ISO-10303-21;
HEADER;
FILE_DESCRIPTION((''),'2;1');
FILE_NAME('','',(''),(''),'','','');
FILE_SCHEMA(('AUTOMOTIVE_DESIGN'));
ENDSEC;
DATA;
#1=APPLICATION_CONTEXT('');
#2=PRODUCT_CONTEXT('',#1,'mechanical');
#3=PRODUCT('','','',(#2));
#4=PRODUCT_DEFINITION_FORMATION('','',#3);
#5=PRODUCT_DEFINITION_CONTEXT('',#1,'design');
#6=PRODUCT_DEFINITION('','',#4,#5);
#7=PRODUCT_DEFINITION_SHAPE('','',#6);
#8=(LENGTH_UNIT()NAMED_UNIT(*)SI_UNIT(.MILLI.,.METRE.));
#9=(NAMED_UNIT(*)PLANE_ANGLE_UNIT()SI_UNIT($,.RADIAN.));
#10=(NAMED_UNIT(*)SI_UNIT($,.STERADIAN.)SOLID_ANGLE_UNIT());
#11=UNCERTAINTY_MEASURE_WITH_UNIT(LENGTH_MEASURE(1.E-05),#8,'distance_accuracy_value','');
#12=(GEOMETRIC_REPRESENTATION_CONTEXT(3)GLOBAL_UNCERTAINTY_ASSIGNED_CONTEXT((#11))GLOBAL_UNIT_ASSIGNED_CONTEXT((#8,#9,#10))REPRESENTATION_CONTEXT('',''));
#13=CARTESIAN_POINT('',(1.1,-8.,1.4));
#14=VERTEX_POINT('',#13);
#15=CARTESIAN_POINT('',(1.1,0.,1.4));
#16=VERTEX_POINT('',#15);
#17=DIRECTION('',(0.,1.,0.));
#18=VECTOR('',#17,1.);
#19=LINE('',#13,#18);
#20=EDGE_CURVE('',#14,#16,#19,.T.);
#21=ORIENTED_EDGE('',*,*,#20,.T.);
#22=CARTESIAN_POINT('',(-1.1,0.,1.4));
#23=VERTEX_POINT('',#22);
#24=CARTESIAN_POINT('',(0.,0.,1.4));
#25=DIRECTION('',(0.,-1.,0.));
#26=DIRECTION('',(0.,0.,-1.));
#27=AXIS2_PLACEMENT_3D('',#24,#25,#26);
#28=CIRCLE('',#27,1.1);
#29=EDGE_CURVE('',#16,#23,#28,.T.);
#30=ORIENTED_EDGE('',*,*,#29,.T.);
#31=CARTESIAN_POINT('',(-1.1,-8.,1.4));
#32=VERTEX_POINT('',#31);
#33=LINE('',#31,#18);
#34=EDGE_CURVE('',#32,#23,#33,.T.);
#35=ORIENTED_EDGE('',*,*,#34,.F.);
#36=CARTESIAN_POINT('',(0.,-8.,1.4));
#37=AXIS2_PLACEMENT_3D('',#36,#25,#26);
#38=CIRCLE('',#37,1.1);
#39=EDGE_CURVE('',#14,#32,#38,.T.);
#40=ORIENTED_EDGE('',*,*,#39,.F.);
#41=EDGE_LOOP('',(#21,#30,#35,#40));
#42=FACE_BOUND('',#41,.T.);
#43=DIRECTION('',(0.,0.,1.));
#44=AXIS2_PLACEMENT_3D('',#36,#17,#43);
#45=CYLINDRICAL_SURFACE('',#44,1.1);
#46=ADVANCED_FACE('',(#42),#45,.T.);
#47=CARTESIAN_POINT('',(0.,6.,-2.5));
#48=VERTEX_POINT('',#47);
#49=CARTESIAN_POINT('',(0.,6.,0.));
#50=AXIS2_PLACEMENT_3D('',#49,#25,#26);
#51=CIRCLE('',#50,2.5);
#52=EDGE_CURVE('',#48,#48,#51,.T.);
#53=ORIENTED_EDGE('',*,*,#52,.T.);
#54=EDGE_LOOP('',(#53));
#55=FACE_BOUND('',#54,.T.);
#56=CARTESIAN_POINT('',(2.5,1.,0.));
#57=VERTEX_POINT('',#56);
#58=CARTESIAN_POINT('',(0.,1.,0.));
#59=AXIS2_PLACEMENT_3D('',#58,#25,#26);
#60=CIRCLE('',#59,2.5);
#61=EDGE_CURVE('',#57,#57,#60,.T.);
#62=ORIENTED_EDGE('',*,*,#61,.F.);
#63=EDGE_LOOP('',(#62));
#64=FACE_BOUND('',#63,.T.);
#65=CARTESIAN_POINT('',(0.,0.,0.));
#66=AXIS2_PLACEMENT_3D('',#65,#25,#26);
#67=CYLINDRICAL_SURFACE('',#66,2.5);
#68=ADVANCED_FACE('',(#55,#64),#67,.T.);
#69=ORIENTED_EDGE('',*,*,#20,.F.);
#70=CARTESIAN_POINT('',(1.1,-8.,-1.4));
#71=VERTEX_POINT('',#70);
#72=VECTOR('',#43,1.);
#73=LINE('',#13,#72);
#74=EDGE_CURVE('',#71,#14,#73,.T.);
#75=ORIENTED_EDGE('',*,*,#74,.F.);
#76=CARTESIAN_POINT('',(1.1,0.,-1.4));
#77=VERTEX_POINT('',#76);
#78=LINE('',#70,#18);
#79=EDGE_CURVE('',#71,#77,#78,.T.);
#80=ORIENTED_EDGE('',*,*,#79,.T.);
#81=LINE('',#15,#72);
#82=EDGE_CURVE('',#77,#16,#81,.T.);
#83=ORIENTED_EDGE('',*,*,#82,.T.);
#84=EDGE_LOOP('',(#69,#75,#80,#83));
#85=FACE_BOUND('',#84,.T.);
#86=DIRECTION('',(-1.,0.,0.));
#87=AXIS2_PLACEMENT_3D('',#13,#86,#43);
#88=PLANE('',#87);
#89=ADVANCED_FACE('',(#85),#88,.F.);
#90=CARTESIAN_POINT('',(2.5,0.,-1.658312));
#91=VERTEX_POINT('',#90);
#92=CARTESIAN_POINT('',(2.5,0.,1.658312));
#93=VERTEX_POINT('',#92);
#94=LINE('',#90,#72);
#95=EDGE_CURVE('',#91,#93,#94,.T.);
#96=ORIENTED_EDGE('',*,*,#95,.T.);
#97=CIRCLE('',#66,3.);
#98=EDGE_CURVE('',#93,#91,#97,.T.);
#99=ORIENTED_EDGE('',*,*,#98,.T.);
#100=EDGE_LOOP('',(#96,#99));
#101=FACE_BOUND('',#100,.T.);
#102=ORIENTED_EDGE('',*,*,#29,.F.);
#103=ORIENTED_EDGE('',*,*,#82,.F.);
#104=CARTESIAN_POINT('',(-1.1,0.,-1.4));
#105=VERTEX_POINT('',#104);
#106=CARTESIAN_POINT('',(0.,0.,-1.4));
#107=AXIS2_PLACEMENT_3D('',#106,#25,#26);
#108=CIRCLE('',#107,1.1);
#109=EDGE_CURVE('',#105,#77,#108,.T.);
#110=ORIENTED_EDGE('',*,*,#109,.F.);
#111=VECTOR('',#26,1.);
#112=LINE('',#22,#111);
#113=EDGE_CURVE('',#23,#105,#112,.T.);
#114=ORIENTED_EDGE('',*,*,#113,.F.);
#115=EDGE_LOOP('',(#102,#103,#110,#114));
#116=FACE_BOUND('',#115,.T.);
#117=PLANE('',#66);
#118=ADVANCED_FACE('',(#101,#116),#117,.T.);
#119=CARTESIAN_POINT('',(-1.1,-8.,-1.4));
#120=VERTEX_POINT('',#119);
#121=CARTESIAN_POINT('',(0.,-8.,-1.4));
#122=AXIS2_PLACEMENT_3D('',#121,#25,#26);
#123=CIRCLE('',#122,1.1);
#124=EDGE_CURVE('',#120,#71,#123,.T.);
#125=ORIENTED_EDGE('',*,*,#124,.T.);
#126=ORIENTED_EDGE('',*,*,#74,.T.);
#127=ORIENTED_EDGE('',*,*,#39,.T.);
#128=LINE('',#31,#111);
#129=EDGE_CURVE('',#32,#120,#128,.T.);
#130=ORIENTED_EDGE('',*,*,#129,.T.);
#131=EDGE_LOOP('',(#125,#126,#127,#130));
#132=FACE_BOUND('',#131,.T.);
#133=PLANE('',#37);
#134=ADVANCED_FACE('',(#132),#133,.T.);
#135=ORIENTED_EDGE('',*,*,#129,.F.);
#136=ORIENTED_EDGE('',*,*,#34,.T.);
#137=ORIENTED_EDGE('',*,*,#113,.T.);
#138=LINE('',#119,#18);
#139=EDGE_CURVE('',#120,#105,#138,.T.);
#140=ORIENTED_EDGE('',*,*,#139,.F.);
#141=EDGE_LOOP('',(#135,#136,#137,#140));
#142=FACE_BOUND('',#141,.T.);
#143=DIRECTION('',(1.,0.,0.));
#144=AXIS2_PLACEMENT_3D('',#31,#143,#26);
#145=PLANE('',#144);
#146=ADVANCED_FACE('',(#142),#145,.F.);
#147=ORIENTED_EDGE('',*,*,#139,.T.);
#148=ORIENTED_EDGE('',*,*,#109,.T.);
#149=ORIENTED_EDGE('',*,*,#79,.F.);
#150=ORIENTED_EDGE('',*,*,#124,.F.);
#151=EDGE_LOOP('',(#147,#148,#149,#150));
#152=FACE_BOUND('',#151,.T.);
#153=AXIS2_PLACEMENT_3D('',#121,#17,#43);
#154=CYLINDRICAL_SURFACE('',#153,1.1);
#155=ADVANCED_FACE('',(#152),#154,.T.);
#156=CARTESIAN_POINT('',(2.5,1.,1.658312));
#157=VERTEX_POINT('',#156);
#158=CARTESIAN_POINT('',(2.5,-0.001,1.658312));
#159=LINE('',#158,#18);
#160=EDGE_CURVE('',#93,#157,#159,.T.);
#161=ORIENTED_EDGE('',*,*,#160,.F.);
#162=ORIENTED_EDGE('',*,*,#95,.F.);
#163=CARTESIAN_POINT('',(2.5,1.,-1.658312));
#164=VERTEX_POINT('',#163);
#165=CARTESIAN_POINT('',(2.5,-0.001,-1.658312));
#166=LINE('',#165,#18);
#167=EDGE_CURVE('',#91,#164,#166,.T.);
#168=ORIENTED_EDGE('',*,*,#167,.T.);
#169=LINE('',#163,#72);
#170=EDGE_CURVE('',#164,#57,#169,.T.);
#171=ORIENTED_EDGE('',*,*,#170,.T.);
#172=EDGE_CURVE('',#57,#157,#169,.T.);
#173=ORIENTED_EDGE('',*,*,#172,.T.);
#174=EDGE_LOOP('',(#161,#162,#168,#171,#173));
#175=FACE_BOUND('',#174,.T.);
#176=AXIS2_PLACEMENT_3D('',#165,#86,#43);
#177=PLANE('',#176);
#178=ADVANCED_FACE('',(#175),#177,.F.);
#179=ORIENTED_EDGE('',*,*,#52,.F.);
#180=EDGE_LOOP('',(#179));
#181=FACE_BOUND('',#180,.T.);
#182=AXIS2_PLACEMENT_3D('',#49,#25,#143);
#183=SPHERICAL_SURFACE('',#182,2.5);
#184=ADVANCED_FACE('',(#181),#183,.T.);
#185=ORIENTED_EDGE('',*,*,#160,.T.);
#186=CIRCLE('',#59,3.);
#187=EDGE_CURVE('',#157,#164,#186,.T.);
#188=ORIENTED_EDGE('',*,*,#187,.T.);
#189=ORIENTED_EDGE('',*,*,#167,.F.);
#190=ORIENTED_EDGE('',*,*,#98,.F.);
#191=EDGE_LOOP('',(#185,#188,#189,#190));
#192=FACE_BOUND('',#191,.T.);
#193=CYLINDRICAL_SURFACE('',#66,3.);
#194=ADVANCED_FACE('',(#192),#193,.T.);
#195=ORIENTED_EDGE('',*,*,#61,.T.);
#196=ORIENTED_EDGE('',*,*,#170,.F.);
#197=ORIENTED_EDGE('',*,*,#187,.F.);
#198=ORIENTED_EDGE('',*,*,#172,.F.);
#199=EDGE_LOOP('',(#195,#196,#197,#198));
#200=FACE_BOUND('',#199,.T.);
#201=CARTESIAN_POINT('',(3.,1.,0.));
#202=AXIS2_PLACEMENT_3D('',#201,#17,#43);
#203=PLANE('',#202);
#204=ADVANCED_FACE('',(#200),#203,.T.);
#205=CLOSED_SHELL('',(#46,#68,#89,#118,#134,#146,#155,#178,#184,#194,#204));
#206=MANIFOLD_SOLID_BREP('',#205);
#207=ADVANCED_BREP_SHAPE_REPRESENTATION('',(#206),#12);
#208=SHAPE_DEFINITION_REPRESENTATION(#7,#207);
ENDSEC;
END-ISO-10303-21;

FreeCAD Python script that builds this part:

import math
import FreeCAD as App
import Part
import Sketcher
from FreeCAD import Vector
Q = App.Units.Quantity

doc = App.newDocument("Part")
body = doc.addObject("PartDesign::Body", "Body")

sketch1 = body.newObject("Sketcher::SketchObject", "Sketch")
sketch1.AttachmentSupport = (doc.getObject("XY_Plane"), [""])
sketch1.MapMode = "FlatFace"
sketch1.addGeometry([
    Part.LineSegment(Vector(0, 8.5, 0), Vector(0, 0, 0)),
    Part.LineSegment(Vector(0, 0, 0), Vector(3, 0, 0)),
    Part.LineSegment(Vector(3, 0, 0), Vector(3, 1, 0)),
    Part.LineSegment(Vector(3, 1, 0), Vector(2.5, 1, 0)),
    Part.LineSegment(Vector(2.5, 1, 0), Vector(2.5, 6, 0)),
    Part.ArcOfCircle(Part.Circle(Vector(0, 6, 0), Vector(0, 0, 1), 2.5), math.radians(0), math.radians(90)),
], False)
sketch1.addConstraint([
    Sketcher.Constraint("Coincident", 0, 2, 1, 1),
    Sketcher.Constraint("Coincident", 1, 2, 2, 1),
    Sketcher.Constraint("Coincident", 2, 2, 3, 1),
    Sketcher.Constraint("Coincident", 3, 2, 4, 1),
    Sketcher.Constraint("Tangent", 4, 2, 5, 1),
    Sketcher.Constraint("Coincident", 5, 2, 0, 1),
    Sketcher.Constraint("Vertical", 0),
    Sketcher.Constraint("Horizontal", 1),
    Sketcher.Constraint("Vertical", 2),
    Sketcher.Constraint("Horizontal", 3),
    Sketcher.Constraint("Vertical", 4),
    Sketcher.Constraint("Coincident", 0, 2, -1, 1),
    Sketcher.Constraint("PointOnObject", 5, 3, -2),
    Sketcher.Constraint("Radius", 5, Q("2.5 mm")),
    Sketcher.Constraint("DistanceX", 1, 1, 1, 2, Q("3 mm")),
    Sketcher.Constraint("DistanceY", 2, 1, 2, 2, Q("1 mm")),
    Sketcher.Constraint("DistanceY", 4, 1, 4, 2, Q("5 mm")),
])
revolution = body.newObject("PartDesign::Revolution", "Revolution")
revolution.Profile = sketch1
revolution.ReferenceAxis = (sketch1, ["V_Axis"])
revolution.Angle = 360

sketch2 = body.newObject("Sketcher::SketchObject", "Sketch001")
sketch2.AttachmentSupport = (doc.getObject("XZ_Plane"), [""])
sketch2.MapMode = "FlatFace"
sketch2.AttachmentOffset = App.Placement(Vector(0, 0, -1), App.Rotation())
sketch2.addGeometry([
    Part.LineSegment(Vector(2.5, -1.7, 0), Vector(2.5, 1.7, 0)),
    Part.ArcOfCircle(Part.Circle(Vector(0, 0, 0), Vector(0, 0, 1), 3), math.radians(-34), math.radians(34)),
], False)
sketch2.addConstraint([
    Sketcher.Constraint("Coincident", 0, 1, 1, 1),
    Sketcher.Constraint("Coincident", 1, 2, 0, 2),
    Sketcher.Constraint("Vertical", 0),
    Sketcher.Constraint("Coincident", 1, 3, -1, 1),
    Sketcher.Constraint("Radius", 1, Q("3 mm")),
    Sketcher.Constraint("DistanceX", -1, 1, 0, 1, Q("2.5 mm")),
])
pocket1 = body.newObject("PartDesign::Pocket", "Pocket")
pocket1.Profile = sketch2
pocket1.Type = "UpToFirst"
pocket1.Reversed = True

sketch3 = body.newObject("Sketcher::SketchObject", "Sketch002")
sketch3.AttachmentSupport = (doc.getObject("XZ_Plane"), [""])
sketch3.MapMode = "FlatFace"
sketch3.addGeometry([
    Part.LineSegment(Vector(1.1, -1.4, 0), Vector(1.1, 1.4, 0)),
    Part.ArcOfCircle(Part.Circle(Vector(0, 1.4, 0), Vector(0, 0, 1), 1.1), math.radians(0), math.radians(180)),
    Part.LineSegment(Vector(-1.1, 1.4, 0), Vector(-1.1, -1.4, 0)),
    Part.ArcOfCircle(Part.Circle(Vector(0, -1.4, 0), Vector(0, 0, 1), 1.1), math.radians(180), math.radians(360)),
], False)
sketch3.addConstraint([
    Sketcher.Constraint("Tangent", 0, 2, 1, 1),
    Sketcher.Constraint("Tangent", 1, 2, 2, 1),
    Sketcher.Constraint("Tangent", 2, 2, 3, 1),
    Sketcher.Constraint("Tangent", 3, 2, 0, 1),
    Sketcher.Constraint("Vertical", 0),
    Sketcher.Constraint("Vertical", 2),
    Sketcher.Constraint("Symmetric", 1, 3, 3, 3, -1, 1),
    Sketcher.Constraint("Radius", 1, Q("1.1 mm")),
    Sketcher.Constraint("DistanceY", 0, 1, 0, 2, Q("2.8 mm")),
])
pad1 = body.newObject("PartDesign::Pad", "Pad")
pad1.Profile = sketch3
pad1.Length = 8

doc.recompute()
